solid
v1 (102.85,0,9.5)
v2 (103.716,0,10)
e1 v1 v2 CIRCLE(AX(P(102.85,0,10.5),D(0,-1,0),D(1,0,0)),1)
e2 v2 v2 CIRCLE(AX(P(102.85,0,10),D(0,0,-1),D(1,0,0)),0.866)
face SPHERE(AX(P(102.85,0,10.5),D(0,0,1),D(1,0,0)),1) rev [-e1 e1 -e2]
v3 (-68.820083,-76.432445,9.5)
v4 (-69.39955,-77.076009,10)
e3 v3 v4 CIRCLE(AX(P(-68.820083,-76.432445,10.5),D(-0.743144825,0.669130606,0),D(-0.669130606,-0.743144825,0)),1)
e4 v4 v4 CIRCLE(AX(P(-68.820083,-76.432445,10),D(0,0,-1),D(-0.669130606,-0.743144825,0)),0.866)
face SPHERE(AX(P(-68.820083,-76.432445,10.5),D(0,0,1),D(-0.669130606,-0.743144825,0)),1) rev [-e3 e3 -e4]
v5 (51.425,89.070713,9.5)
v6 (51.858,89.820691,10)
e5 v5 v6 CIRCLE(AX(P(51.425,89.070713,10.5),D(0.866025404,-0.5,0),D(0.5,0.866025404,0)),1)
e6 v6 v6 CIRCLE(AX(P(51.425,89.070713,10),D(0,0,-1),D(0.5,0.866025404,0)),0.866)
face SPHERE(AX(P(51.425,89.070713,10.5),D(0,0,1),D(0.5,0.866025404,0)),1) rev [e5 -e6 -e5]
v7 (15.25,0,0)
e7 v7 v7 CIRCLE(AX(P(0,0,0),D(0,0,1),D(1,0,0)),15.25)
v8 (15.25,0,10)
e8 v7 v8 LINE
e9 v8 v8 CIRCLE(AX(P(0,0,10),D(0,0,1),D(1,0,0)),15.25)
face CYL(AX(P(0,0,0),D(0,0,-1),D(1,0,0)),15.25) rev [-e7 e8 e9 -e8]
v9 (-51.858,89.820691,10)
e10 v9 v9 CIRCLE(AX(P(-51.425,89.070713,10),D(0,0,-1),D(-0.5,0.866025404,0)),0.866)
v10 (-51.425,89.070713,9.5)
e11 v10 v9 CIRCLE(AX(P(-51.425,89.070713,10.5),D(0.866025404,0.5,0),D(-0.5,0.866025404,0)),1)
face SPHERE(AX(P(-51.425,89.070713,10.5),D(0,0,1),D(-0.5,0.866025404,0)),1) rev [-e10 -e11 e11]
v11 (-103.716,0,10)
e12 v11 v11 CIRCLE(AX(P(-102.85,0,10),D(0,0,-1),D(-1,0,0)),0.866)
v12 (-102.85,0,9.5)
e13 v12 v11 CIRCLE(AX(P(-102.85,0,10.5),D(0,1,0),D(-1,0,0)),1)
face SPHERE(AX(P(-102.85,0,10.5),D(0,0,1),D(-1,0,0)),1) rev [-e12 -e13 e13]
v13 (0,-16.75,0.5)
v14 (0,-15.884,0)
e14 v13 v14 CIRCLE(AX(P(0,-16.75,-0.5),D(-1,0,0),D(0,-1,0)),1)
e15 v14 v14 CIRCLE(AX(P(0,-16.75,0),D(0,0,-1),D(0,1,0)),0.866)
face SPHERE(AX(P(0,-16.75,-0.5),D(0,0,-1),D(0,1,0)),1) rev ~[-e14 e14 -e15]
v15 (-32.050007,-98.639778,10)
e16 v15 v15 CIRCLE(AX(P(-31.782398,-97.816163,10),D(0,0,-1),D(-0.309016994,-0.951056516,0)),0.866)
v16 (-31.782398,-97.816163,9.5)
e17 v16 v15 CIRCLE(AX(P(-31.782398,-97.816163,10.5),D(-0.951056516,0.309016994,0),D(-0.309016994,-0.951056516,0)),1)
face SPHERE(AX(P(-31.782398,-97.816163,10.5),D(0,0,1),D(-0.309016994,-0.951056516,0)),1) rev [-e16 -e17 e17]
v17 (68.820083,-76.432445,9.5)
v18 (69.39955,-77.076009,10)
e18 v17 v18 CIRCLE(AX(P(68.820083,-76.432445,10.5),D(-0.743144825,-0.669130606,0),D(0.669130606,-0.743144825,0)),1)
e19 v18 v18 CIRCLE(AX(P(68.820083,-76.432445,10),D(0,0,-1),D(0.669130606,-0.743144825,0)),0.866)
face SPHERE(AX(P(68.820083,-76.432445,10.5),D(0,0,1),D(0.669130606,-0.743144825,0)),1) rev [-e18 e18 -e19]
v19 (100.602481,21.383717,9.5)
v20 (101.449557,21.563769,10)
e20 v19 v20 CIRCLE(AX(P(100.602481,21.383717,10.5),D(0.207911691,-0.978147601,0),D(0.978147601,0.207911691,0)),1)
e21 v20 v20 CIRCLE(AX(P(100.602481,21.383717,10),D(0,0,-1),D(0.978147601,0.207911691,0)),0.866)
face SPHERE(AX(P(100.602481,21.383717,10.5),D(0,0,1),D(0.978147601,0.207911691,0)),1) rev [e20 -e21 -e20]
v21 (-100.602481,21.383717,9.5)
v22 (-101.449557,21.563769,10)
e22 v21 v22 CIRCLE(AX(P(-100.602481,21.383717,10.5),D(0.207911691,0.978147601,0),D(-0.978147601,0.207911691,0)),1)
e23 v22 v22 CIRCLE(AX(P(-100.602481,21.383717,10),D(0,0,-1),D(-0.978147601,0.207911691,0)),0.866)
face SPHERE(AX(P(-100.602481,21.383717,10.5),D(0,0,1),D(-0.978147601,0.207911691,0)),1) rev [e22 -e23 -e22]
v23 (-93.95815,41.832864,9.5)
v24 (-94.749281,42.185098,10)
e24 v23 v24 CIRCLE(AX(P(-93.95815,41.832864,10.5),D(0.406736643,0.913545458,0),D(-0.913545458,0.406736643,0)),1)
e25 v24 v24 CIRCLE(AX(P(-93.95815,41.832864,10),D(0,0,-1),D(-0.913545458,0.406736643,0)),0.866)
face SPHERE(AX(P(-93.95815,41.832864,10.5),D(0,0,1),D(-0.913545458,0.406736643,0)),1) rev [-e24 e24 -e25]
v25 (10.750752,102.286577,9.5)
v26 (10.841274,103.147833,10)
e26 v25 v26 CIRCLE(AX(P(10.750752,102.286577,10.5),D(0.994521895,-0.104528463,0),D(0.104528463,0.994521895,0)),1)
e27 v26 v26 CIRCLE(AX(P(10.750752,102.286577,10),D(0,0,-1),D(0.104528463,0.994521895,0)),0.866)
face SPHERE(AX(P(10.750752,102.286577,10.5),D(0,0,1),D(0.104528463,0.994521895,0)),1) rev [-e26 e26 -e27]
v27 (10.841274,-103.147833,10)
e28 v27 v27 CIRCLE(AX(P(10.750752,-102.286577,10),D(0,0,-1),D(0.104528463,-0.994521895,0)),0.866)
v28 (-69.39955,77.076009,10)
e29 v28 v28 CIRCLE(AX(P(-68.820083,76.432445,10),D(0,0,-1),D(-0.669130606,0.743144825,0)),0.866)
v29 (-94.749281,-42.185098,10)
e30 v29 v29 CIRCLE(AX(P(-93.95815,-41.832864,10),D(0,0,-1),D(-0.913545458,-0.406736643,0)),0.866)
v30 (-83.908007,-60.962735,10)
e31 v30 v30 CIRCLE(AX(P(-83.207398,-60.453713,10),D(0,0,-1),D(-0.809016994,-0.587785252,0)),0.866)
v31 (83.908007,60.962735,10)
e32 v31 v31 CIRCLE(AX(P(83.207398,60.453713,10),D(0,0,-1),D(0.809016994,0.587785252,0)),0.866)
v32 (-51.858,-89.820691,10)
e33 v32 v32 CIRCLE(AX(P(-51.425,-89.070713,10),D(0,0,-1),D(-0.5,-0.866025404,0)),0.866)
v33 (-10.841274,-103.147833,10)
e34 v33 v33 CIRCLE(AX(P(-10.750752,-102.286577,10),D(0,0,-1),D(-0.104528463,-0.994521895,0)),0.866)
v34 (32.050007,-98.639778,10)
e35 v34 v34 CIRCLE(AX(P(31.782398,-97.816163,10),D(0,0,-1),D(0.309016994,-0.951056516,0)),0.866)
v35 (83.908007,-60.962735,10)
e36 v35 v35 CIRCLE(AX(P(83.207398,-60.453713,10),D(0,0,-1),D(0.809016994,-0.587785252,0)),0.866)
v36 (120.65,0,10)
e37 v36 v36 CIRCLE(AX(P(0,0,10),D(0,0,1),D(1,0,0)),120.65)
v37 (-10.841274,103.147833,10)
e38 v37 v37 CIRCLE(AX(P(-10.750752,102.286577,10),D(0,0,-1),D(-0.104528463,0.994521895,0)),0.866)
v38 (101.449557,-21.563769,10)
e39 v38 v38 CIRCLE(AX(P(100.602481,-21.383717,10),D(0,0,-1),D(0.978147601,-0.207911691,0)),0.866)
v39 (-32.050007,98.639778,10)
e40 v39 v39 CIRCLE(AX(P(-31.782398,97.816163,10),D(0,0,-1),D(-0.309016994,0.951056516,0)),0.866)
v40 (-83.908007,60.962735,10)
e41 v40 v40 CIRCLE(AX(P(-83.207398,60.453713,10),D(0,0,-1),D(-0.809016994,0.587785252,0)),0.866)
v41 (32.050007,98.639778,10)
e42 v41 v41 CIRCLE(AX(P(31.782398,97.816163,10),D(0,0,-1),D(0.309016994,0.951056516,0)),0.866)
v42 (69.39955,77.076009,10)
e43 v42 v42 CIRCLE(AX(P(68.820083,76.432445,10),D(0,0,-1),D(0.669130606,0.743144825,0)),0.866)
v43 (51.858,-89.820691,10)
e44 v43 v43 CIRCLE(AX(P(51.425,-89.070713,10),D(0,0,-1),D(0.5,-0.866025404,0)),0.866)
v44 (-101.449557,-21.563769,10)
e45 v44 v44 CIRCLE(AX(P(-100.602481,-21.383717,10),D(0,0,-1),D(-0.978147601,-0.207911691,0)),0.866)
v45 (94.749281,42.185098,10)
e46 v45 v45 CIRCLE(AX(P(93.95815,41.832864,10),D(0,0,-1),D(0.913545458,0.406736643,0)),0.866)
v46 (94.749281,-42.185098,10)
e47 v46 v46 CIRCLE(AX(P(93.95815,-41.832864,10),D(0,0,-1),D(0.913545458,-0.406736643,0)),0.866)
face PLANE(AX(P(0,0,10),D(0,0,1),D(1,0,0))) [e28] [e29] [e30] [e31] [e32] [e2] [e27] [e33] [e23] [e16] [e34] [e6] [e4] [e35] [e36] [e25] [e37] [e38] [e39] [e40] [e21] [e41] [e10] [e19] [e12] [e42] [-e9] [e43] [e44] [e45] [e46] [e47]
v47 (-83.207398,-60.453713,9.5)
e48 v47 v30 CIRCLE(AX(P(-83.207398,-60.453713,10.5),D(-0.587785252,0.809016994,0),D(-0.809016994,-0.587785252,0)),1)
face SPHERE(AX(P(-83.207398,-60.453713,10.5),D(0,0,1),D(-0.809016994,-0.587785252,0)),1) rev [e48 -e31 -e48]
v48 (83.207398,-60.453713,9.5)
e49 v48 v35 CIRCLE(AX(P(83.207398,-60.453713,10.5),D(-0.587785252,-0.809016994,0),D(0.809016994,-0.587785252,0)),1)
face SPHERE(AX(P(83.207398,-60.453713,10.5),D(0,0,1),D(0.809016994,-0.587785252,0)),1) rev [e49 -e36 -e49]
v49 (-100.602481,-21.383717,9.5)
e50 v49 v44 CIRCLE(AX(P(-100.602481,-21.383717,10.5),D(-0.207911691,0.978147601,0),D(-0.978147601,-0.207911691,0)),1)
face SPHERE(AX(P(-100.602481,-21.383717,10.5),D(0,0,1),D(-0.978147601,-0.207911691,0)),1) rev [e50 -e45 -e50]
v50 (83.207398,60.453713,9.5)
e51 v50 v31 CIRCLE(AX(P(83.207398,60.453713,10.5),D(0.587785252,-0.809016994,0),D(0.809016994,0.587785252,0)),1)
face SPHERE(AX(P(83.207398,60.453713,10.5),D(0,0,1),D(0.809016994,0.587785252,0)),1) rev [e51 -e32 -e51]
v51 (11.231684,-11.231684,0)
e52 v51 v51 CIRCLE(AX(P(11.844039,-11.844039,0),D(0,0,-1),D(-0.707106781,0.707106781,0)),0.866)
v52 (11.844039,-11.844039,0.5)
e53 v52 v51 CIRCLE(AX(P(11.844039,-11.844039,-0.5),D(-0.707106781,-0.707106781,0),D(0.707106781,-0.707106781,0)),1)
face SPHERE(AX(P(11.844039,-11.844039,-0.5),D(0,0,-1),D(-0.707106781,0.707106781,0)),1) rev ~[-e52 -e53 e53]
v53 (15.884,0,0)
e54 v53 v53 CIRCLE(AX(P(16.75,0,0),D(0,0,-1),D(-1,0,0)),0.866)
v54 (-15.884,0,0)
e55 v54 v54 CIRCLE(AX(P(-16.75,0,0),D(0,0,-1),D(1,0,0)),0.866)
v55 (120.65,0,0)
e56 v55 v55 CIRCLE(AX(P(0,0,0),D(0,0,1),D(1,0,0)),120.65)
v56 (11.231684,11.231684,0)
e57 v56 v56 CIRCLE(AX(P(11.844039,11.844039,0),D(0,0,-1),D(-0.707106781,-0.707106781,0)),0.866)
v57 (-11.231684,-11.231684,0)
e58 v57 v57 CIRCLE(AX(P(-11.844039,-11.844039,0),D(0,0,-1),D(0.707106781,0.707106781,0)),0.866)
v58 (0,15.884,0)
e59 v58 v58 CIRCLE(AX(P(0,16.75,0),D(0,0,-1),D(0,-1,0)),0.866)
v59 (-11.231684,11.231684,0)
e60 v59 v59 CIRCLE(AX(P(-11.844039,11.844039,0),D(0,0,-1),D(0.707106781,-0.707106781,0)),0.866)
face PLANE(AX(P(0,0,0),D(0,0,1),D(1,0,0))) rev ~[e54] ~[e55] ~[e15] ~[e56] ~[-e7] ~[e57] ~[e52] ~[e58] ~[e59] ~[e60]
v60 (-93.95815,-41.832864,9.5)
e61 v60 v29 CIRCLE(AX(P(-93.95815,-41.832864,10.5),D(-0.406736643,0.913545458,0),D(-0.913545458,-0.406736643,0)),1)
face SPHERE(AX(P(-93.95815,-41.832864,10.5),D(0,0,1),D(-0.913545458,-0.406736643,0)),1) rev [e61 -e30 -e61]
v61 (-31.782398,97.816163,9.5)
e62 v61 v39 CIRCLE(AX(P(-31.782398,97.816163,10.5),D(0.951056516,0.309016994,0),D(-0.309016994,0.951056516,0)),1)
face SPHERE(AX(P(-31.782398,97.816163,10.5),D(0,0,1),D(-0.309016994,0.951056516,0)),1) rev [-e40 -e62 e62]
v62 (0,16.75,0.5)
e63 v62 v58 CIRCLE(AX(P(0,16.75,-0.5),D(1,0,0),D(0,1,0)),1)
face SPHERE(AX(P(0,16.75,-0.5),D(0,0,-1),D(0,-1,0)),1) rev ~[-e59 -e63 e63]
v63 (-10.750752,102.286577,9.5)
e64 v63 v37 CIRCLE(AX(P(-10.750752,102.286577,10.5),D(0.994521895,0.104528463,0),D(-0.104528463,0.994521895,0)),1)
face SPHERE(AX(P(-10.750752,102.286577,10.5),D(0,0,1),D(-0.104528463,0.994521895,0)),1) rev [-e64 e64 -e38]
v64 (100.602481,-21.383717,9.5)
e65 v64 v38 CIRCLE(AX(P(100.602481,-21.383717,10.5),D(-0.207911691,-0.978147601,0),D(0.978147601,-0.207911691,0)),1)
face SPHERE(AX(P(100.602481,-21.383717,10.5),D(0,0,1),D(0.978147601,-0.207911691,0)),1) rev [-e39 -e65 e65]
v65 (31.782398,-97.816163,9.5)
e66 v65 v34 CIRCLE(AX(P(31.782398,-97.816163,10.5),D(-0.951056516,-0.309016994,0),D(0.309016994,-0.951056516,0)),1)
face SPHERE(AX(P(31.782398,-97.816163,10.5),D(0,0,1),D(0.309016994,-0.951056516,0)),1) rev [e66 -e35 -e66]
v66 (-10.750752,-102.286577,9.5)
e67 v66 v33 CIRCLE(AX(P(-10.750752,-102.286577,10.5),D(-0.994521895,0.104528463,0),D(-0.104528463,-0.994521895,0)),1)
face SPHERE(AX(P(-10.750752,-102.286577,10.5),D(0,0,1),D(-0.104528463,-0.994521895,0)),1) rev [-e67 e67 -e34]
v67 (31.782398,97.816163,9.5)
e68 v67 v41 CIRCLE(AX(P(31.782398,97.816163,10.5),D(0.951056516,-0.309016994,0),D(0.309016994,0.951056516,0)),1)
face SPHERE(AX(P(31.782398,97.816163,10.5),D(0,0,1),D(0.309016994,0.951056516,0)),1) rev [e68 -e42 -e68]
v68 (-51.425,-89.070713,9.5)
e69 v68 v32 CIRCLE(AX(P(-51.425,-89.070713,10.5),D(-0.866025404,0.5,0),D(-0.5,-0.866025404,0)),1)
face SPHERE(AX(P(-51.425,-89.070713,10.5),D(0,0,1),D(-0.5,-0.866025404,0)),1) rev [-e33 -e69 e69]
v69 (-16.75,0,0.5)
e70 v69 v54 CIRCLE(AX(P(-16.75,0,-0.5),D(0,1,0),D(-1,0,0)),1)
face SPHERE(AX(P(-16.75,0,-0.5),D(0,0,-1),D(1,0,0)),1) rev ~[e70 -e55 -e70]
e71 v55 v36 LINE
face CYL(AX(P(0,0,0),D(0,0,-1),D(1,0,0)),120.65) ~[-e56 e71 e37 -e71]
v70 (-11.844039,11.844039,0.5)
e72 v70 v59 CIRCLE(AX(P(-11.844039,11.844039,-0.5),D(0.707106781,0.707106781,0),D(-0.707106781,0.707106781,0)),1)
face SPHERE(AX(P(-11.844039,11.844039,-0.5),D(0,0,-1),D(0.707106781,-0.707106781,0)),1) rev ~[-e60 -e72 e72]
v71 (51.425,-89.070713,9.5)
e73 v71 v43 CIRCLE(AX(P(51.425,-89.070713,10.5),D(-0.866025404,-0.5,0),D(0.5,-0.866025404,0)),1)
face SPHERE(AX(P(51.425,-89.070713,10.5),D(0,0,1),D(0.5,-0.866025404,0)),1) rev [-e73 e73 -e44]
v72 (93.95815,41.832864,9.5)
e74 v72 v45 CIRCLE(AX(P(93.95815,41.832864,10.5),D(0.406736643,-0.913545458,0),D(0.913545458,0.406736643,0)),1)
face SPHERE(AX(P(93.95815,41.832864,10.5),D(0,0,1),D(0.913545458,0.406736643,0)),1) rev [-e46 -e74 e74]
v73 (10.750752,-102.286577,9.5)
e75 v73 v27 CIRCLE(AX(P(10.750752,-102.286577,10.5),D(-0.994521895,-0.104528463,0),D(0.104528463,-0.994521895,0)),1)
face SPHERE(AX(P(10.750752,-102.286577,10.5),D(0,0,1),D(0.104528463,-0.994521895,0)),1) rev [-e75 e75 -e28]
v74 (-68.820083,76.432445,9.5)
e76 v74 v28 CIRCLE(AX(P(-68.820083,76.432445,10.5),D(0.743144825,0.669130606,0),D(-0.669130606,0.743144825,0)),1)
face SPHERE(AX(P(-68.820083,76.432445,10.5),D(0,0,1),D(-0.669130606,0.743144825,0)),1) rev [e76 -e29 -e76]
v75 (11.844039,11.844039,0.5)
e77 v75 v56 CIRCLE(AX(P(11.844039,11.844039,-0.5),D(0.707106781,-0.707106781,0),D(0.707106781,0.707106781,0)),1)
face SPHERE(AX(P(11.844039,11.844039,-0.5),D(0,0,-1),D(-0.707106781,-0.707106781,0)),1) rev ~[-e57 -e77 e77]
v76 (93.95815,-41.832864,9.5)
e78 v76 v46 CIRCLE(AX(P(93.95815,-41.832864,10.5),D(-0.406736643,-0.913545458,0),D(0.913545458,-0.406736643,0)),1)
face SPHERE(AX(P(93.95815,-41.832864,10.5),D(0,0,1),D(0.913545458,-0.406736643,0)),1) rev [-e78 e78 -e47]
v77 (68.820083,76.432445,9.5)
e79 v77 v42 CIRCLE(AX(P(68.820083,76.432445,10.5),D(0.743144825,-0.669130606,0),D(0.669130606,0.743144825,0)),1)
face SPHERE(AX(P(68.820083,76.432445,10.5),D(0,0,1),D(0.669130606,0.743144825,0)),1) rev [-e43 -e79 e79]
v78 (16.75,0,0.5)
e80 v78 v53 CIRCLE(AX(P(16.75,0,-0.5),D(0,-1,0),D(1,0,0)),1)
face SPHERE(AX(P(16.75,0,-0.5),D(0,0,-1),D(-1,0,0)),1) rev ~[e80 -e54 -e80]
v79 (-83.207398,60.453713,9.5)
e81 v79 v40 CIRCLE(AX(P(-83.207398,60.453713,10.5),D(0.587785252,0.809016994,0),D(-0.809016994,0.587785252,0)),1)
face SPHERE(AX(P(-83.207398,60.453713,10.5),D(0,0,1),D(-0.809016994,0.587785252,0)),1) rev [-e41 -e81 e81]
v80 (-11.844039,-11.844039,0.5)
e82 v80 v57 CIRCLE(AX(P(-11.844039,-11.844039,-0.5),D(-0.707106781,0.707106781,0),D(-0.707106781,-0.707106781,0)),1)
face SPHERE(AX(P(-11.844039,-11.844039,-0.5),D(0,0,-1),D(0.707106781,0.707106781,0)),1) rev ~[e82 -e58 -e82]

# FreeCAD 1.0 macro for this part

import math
import FreeCAD as App
import Part
import Sketcher
Q = App.Units.Quantity

doc = App.newDocument("Part")
params = doc.addObject("Spreadsheet::Sheet", "Params")
for row, (alias, value) in enumerate([
    ("sketch1_diameter", "241.3 mm"),
    ("sketch1_diameter2", "30.5 mm"),
    ("pad1_length", "10 mm"),
    ("sketch2_radius", "1 mm"),
    ("sketch2_height", "0.5 mm"),
    ("groove_angle", "360 deg"),
    ("sketch3_radius", "1 mm"),
    ("sketch3_height", "0.5 mm"),
    ("groove2_angle", "360 deg"),
], start=1):
    params.set(f"A{row}", alias)
    params.set(f"B{row}", "=" + value)
    params.setAlias(f"B{row}", alias)

body = doc.addObject("PartDesign::Body", "Body")

# Sketch on XY plane
sketch1 = body.newObject("Sketcher::SketchObject", "Sketch")
sketch1.AttachmentSupport = (doc.getObject("XY_Plane"), [""])
sketch1.MapMode = "FlatFace"
sketch1.addGeometry([
    Part.Circle(App.Vector(0, 0, 0), App.Vector(0, 0, 1), 121),
    Part.Circle(App.Vector(0, 0, 0), App.Vector(0, 0, 1), 15),
], False)
sketch1.addConstraint([
    Sketcher.Constraint("Coincident", 0, 3, -1, 1),
    Sketcher.Constraint("Coincident", 1, 3, -1, 1),
    Sketcher.Constraint("Diameter", 0, Q("241.3 mm")),
    Sketcher.Constraint("Diameter", 1, Q("30.5 mm")),
])
sketch1.setExpression("Constraints[2]", "Params.sketch1_diameter")
sketch1.setExpression("Constraints[3]", "Params.sketch1_diameter2")
pad1 = body.newObject("PartDesign::Pad", "Pad")
pad1.Profile = sketch1
pad1.setExpression("Length", "Params.pad1_length")

# Sketch on XZ plane
sketch2 = body.newObject("Sketcher::SketchObject", "Sketch001")
sketch2.AttachmentSupport = (doc.getObject("XZ_Plane"), [""])
sketch2.MapMode = "FlatFace"
sketch2.addGeometry([
    Part.LineSegment(App.Vector(-103.7, 10, 0), App.Vector(-102.8, 10, 0)),
    Part.LineSegment(App.Vector(-102.8, 10, 0), App.Vector(-102.8, 9.5, 0)),
    Part.ArcOfCircle(Part.Circle(App.Vector(-102.8, 10.5, 0), App.Vector(0, 0, 1), 1), math.radians(-150), math.radians(-90)),
], False)
sketch2.addGeometry(Part.LineSegment(App.Vector(-102.8, 10.5, 0), App.Vector(-102.8, 9.5, 0)), True)  # axis
sketch2.addConstraint([
    Sketcher.Constraint("Coincident", 0, 2, 1, 1),
    Sketcher.Constraint("Coincident", 1, 2, 2, 2),
    Sketcher.Constraint("Coincident", 2, 1, 0, 1),
    Sketcher.Constraint("Horizontal", 0),
    Sketcher.Constraint("Vertical", 1),
    Sketcher.Constraint("Vertical", 3),
    Sketcher.Constraint("Coincident", 3, 1, 2, 3),
    Sketcher.Constraint("Coincident", 3, 2, 1, 2),
    Sketcher.Constraint("Radius", 2, Q("1 mm")),
    Sketcher.Constraint("DistanceY", 1, 2, 1, 1, Q("0.5 mm")),
    Sketcher.Constraint("DistanceX", 2, 3, -1, 1, Q("102.85 mm")),
    Sketcher.Constraint("DistanceY", -1, 1, 0, 2, Q("10 mm")),
])
sketch2.setExpression("Constraints[8]", "Params.sketch2_radius")
sketch2.setExpression("Constraints[9]", "Params.sketch2_height")
groove = body.newObject("PartDesign::Groove", "Groove")
groove.Profile = sketch2
groove.ReferenceAxis = (sketch2, ["Axis0"])
groove.setExpression("Angle", "Params.groove_angle")
doc.recompute()

polarpattern = body.newObject("PartDesign::PolarPattern", "PolarPattern")
polarpattern.Originals = [groove]
polarpattern.Axis = (doc.getObject("Z_Axis"), [""])
polarpattern.Angle = 360
polarpattern.Occurrences = 30
body.Tip = polarpattern

# Sketch on XZ plane
sketch3 = body.newObject("Sketcher::SketchObject", "Sketch002")
sketch3.AttachmentSupport = (doc.getObject("XZ_Plane"), [""])
sketch3.MapMode = "FlatFace"
sketch3.addGeometry([
    Part.ArcOfCircle(Part.Circle(App.Vector(-16.8, -0.5, 0), App.Vector(0, 0, 1), 1), math.radians(30), math.radians(90)),
    Part.LineSegment(App.Vector(-15.9, 0, 0), App.Vector(-16.8, 0, 0)),
    Part.LineSegment(App.Vector(-16.8, 0, 0), App.Vector(-16.8, 0.5, 0)),
], False)
sketch3.addGeometry(Part.LineSegment(App.Vector(-16.8, 0.5, 0), App.Vector(-16.8, -0.5, 0)), True)  # axis
sketch3.addConstraint([
    Sketcher.Constraint("Coincident", 0, 1, 1, 1),
    Sketcher.Constraint("Coincident", 1, 2, 2, 1),
    Sketcher.Constraint("Coincident", 2, 2, 0, 2),
    Sketcher.Constraint("Horizontal", 1),
    Sketcher.Constraint("Vertical", 2),
    Sketcher.Constraint("Vertical", 3),
    Sketcher.Constraint("Coincident", 3, 1, 2, 2),
    Sketcher.Constraint("Coincident", 3, 2, 0, 3),
    Sketcher.Constraint("PointOnObject", 0, 1, -1),
    Sketcher.Constraint("Radius", 0, Q("1 mm")),
    Sketcher.Constraint("DistanceY", 2, 1, 2, 2, Q("0.5 mm")),
    Sketcher.Constraint("DistanceX", 0, 3, -1, 1, Q("16.75 mm")),
])
sketch3.setExpression("Constraints[9]", "Params.sketch3_radius")
sketch3.setExpression("Constraints[10]", "Params.sketch3_height")
groove2 = body.newObject("PartDesign::Groove", "Groove001")
groove2.Profile = sketch3
groove2.ReferenceAxis = (sketch3, ["Axis0"])
groove2.setExpression("Angle", "Params.groove2_angle")
doc.recompute()

polarpattern2 = body.newObject("PartDesign::PolarPattern", "PolarPattern001")
polarpattern2.Originals = [groove2]
polarpattern2.Axis = (doc.getObject("Z_Axis"), [""])
polarpattern2.Angle = 360
polarpattern2.Occurrences = 8
body.Tip = polarpattern2

doc.recompute()
